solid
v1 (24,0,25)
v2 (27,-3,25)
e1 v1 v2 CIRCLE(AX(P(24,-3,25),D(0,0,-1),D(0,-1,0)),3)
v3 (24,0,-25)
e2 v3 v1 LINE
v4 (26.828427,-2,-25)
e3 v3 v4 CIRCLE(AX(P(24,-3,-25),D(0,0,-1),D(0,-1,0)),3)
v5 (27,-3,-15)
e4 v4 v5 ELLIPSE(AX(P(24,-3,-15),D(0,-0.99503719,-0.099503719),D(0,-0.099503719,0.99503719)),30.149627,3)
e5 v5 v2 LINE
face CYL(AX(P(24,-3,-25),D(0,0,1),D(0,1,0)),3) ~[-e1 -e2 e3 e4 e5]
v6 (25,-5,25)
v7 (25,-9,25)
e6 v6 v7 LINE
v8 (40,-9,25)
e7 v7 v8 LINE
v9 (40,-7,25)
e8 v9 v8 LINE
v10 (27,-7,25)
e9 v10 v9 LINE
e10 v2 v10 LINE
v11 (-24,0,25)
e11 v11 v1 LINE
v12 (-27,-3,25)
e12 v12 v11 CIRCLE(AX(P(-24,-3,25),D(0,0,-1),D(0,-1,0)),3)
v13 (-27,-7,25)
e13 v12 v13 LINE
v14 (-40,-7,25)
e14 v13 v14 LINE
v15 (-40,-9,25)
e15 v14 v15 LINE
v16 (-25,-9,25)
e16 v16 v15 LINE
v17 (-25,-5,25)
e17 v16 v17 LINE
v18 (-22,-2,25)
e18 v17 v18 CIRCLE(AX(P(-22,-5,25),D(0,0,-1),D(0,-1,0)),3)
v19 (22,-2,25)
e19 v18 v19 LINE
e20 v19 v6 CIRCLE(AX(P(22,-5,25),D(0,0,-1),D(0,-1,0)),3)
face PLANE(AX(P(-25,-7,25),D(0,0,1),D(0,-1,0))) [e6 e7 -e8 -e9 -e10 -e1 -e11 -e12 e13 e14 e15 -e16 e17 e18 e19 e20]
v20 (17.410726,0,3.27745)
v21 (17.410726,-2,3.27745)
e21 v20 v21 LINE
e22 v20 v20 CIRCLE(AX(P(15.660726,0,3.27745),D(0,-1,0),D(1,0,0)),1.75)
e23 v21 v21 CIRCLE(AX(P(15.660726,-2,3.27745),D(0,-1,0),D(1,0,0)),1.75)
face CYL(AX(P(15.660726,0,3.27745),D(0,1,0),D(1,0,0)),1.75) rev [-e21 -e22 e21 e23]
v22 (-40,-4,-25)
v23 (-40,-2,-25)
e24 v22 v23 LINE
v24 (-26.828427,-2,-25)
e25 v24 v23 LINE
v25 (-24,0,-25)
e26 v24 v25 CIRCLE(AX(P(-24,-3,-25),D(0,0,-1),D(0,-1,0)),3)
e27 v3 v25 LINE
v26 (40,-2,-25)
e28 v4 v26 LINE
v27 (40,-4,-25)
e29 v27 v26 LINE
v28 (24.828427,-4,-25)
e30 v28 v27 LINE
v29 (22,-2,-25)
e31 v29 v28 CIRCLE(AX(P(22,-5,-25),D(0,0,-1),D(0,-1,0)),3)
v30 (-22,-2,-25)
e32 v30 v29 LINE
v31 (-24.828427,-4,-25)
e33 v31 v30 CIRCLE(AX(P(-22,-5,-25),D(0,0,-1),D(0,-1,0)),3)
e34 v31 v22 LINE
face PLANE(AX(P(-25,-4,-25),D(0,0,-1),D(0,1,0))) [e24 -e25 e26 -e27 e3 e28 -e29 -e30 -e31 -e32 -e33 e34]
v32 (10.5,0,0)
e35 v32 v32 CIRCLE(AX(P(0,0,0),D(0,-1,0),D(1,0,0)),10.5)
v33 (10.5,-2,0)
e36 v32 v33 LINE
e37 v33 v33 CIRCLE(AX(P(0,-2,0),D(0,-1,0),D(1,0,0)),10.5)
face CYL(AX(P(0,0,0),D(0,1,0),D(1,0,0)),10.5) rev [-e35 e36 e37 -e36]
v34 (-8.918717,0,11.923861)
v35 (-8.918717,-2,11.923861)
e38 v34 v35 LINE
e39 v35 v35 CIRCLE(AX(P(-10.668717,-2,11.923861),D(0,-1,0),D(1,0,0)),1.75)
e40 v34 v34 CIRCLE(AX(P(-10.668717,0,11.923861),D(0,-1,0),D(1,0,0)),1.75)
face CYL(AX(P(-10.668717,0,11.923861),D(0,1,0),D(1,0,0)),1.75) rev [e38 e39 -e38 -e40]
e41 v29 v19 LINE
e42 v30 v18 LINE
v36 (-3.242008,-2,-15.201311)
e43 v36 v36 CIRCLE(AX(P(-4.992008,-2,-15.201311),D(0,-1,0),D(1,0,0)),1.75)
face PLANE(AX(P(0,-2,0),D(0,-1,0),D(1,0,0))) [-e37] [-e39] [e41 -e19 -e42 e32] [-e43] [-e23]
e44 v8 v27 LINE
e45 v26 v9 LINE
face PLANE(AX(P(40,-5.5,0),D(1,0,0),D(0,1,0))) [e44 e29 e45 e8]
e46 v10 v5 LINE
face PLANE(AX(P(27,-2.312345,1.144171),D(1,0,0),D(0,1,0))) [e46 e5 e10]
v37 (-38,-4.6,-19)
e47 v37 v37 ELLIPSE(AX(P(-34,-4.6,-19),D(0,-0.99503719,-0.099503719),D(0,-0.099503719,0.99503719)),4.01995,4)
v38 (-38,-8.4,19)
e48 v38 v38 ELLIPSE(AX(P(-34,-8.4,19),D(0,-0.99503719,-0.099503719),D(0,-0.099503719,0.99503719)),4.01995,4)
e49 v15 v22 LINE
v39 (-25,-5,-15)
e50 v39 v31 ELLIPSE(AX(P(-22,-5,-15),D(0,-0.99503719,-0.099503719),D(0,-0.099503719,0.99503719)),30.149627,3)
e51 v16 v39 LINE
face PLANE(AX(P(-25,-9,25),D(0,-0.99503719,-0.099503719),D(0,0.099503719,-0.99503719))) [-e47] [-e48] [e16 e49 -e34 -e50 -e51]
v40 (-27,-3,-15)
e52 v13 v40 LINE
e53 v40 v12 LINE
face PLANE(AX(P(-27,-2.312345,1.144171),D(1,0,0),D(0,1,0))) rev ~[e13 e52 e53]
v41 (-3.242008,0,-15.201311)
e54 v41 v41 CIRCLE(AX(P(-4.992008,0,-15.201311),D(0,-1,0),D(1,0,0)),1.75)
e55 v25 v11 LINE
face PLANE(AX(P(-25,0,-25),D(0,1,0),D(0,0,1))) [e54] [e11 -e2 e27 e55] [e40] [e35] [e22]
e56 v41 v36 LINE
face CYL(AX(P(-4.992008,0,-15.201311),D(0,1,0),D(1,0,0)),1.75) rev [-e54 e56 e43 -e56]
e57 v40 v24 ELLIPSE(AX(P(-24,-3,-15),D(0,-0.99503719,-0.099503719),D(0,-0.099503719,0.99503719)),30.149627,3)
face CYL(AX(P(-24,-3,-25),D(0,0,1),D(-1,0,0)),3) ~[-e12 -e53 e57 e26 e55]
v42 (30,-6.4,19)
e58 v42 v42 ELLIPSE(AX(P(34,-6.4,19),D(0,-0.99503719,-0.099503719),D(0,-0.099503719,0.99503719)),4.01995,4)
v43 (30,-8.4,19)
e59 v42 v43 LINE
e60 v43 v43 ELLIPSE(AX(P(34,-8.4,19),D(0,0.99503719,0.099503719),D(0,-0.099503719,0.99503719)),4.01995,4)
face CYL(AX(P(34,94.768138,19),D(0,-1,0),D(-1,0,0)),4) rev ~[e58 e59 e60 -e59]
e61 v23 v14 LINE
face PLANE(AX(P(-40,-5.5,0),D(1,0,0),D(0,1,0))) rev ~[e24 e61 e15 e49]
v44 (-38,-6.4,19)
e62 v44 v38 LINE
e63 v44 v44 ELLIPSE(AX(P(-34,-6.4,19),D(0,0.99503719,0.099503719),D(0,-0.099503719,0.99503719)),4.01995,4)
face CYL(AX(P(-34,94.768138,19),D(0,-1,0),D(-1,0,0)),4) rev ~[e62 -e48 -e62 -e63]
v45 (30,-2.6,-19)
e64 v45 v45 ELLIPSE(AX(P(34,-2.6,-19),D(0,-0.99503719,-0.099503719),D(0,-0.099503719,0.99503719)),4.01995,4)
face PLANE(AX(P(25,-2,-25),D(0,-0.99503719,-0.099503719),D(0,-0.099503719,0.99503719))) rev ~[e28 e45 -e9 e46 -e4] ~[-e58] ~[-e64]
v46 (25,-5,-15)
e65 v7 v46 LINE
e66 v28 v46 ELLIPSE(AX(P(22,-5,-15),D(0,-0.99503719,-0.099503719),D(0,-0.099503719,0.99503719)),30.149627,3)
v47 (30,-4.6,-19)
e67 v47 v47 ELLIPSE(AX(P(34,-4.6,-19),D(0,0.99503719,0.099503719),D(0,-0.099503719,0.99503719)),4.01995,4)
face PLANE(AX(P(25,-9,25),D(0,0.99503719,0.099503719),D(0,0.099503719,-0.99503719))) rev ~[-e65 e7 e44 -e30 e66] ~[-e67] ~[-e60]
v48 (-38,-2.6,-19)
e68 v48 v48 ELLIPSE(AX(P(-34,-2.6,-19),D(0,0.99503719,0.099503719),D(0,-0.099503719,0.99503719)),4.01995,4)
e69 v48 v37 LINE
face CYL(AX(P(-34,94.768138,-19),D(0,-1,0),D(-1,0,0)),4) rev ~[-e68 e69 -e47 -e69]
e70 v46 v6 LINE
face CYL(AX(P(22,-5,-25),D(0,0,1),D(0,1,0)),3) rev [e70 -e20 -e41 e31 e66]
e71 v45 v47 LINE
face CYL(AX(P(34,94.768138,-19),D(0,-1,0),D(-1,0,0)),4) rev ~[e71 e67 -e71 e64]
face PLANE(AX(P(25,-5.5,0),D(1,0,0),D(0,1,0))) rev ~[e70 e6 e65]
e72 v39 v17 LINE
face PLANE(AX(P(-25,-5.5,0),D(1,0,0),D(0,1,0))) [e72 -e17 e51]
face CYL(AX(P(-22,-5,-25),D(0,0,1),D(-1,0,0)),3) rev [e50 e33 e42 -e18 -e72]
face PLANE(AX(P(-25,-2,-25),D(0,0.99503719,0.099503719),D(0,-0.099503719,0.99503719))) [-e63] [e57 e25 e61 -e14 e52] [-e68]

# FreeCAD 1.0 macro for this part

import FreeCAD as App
import Part
import Sketcher
Q = App.Units.Quantity


def edges_at(feature, points):
    """Names of the edges that pass closest to the given points."""
    edges = feature.Shape.Edges
    near = lambda p: min(range(len(edges)), key=lambda i: edges[i].distToShape(Part.Vertex(*p))[0])
    return sorted({f"Edge{near(p) + 1}" for p in points})

doc = App.newDocument("Part")
body = doc.addObject("PartDesign::Body", "Body")

# Sketch on XZ plane
sketch1 = body.newObject("Sketcher::SketchObject", "Sketch")
sketch1.AttachmentSupport = (doc.getObject("XZ_Plane"), [""])
sketch1.MapMode = "FlatFace"
sketch1.addGeometry(Part.LineSegment(App.Vector(-25, 25, 0), App.Vector(-25, -25, 0)), False)
sketch1.addGeometry(Part.LineSegment(App.Vector(-25, -25, 0), App.Vector(25, -25, 0)), False)
sketch1.addGeometry(Part.LineSegment(App.Vector(25, -25, 0), App.Vector(25, 25, 0)), False)
sketch1.addGeometry(Part.LineSegment(App.Vector(25, 25, 0), App.Vector(-25, 25, 0)), False)
sketch1.addGeometry(Part.Circle(App.Vector(-5, -15.2, 0), App.Vector(0, 0, 1), 1.8), False)
sketch1.addGeometry(Part.Circle(App.Vector(0, 0, 0), App.Vector(0, 0, 1), 10.5), False)
sketch1.addGeometry(Part.Circle(App.Vector(-10.7, 11.9, 0), App.Vector(0, 0, 1), 1.8), False)
sketch1.addGeometry(Part.Circle(App.Vector(15.7, 3.3, 0), App.Vector(0, 0, 1), 1.8), False)
sketch1.addConstraint(Sketcher.Constraint("Coincident", 0, 2, 1, 1))
sketch1.addConstraint(Sketcher.Constraint("Coincident", 1, 2, 2, 1))
sketch1.addConstraint(Sketcher.Constraint("Coincident", 2, 2, 3, 1))
sketch1.addConstraint(Sketcher.Constraint("Coincident", 3, 2, 0, 1))
sketch1.addConstraint(Sketcher.Constraint("Vertical", 0))
sketch1.addConstraint(Sketcher.Constraint("Horizontal", 1))
sketch1.addConstraint(Sketcher.Constraint("Vertical", 2))
sketch1.addConstraint(Sketcher.Constraint("Horizontal", 3))
sketch1.addConstraint(Sketcher.Constraint("Coincident", 5, 3, -1, 1))
sketch1.addConstraint(Sketcher.Constraint("Equal", 4, 6))
sketch1.addConstraint(Sketcher.Constraint("Equal", 6, 7))
sketch1.addConstraint(Sketcher.Constraint("Symmetric", 0, 2, 2, 2, -1, 1))
sketch1.addConstraint(Sketcher.Constraint("Equal", 3, 0))
sketch1.addConstraint(Sketcher.Constraint("Diameter", 5, Q("21 mm")))
sketch1.addConstraint(Sketcher.Constraint("Diameter", 4, Q("3.5 mm")))
sketch1.addConstraint(Sketcher.Constraint("DistanceX", 1, 1, 1, 2, Q("50 mm")))
sketch1.addConstraint(Sketcher.Constraint("DistanceX", 4, 3, -1, 1, Q("4.992008 mm")))
sketch1.addConstraint(Sketcher.Constraint("DistanceY", 4, 3, -1, 1, Q("15.201311 mm")))
sketch1.addConstraint(Sketcher.Constraint("DistanceY", -1, 1, 6, 3, Q("11.923861 mm")))
sketch1.addConstraint(Sketcher.Constraint("DistanceY", -1, 1, 7, 3, Q("3.27745 mm")))
sketch1.addConstraint(Sketcher.Constraint("DistanceX", 6, 3, 4, 3, Q("5.676709 mm")))
sketch1.addConstraint(Sketcher.Constraint("DistanceX", -1, 1, 7, 3, Q("15.660726 mm")))
pad1 = body.newObject("PartDesign::Pad", "Pad")
pad1.Profile = sketch1
pad1.Length = 2

# Sketch on YZ plane
sketch2 = body.newObject("Sketcher::SketchObject", "Sketch001")
sketch2.AttachmentSupport = (doc.getObject("YZ_Plane"), [""])
sketch2.MapMode = "FlatFace"
sketch2.AttachmentOffset = App.Placement(App.Vector(0, 0, 25), App.Rotation())
sketch2.addGeometry(Part.LineSegment(App.Vector(0, 25, 0), App.Vector(-7, 25, 0)), False)
sketch2.addGeometry(Part.LineSegment(App.Vector(-7, 25, 0), App.Vector(-2, -25, 0)), False)
sketch2.addGeometry(Part.LineSegment(App.Vector(-2, -25, 0), App.Vector(0, -25, 0)), False)
sketch2.addGeometry(Part.LineSegment(App.Vector(0, -25, 0), App.Vector(0, 25, 0)), False)
sketch2.addConstraint(Sketcher.Constraint("Coincident", 0, 2, 1, 1))
sketch2.addConstraint(Sketcher.Constraint("Coincident", 1, 2, 2, 1))
sketch2.addConstraint(Sketcher.Constraint("Coincident", 2, 2, 3, 1))
sketch2.addConstraint(Sketcher.Constraint("Coincident", 3, 2, 0, 1))
sketch2.addConstraint(Sketcher.Constraint("Horizontal", 0))
sketch2.addConstraint(Sketcher.Constraint("Horizontal", 2))
sketch2.addConstraint(Sketcher.Constraint("Vertical", 3))
sketch2.addConstraint(Sketcher.Constraint("Symmetric", 2, 2, 3, 2, -1, 1))
sketch2.addConstraint(Sketcher.Constraint("DistanceX", 0, 2, 0, 1, Q("7 mm")))
sketch2.addConstraint(Sketcher.Constraint("DistanceX", 2, 1, 2, 2, Q("2 mm")))
sketch2.addConstraint(Sketcher.Constraint("DistanceY", 3, 1, 3, 2, Q("50 mm")))
pad2 = body.newObject("PartDesign::Pad", "Pad001")
pad2.Profile = sketch2
pad2.Length = 2

# Sketch on YZ plane
sketch3 = body.newObject("Sketcher::SketchObject", "Sketch002")
sketch3.AttachmentSupport = (doc.getObject("YZ_Plane"), [""])
sketch3.MapMode = "FlatFace"
sketch3.AttachmentOffset = App.Placement(App.Vector(0, 0, -25), App.Rotation())
sketch3.addGeometry(Part.LineSegment(App.Vector(0, -25, 0), App.Vector(0, 25, 0)), False)
sketch3.addGeometry(Part.LineSegment(App.Vector(0, 25, 0), App.Vector(-7, 25, 0)), False)
sketch3.addGeometry(Part.LineSegment(App.Vector(-7, 25, 0), App.Vector(-2, -25, 0)), False)
sketch3.addGeometry(Part.LineSegment(App.Vector(-2, -25, 0), App.Vector(0, -25, 0)), False)
sketch3.addConstraint(Sketcher.Constraint("Coincident", 0, 2, 1, 1))
sketch3.addConstraint(Sketcher.Constraint("Coincident", 1, 2, 2, 1))
sketch3.addConstraint(Sketcher.Constraint("Coincident", 2, 2, 3, 1))
sketch3.addConstraint(Sketcher.Constraint("Coincident", 3, 2, 0, 1))
sketch3.addConstraint(Sketcher.Constraint("Vertical", 0))
sketch3.addConstraint(Sketcher.Constraint("Horizontal", 1))
sketch3.addConstraint(Sketcher.Constraint("Horizontal", 3))
sketch3.addConstraint(Sketcher.Constraint("Symmetric", 0, 2, 3, 2, -1, 1))
sketch3.addConstraint(Sketcher.Constraint("DistanceX", 1, 2, 1, 1, Q("7 mm")))
sketch3.addConstraint(Sketcher.Constraint("DistanceX", 3, 1, 3, 2, Q("2 mm")))
sketch3.addConstraint(Sketcher.Constraint("DistanceY", 0, 1, 0, 2, Q("50 mm")))
pad3 = body.newObject("PartDesign::Pad", "Pad002")
pad3.Profile = sketch3
pad3.Length = 2
pad3.Reversed = True

# Sketch on YZ plane
sketch4 = body.newObject("Sketcher::SketchObject", "Sketch003")
sketch4.AttachmentSupport = (doc.getObject("YZ_Plane"), [""])
sketch4.MapMode = "FlatFace"
sketch4.AttachmentOffset = App.Placement(App.Vector(0, 0, 25), App.Rotation())
sketch4.addGeometry(Part.LineSegment(App.Vector(-2, -25, 0), App.Vector(-7, 25, 0)), False)
sketch4.addGeometry(Part.LineSegment(App.Vector(-7, 25, 0), App.Vector(-9, 25, 0)), False)
sketch4.addGeometry(Part.LineSegment(App.Vector(-9, 25, 0), App.Vector(-4, -25, 0)), False)
sketch4.addGeometry(Part.LineSegment(App.Vector(-4, -25, 0), App.Vector(-2, -25, 0)), False)
sketch4.addConstraint(Sketcher.Constraint("Coincident", 0, 2, 1, 1))
sketch4.addConstraint(Sketcher.Constraint("Coincident", 1, 2, 2, 1))
sketch4.addConstraint(Sketcher.Constraint("Coincident", 2, 2, 3, 1))
sketch4.addConstraint(Sketcher.Constraint("Coincident", 3, 2, 0, 1))
sketch4.addConstraint(Sketcher.Constraint("Horizontal", 1))
sketch4.addConstraint(Sketcher.Constraint("Horizontal", 3))
sketch4.addConstraint(Sketcher.Constraint("Parallel", 0, 2))
sketch4.addConstraint(Sketcher.Constraint("DistanceX", 1, 2, 1, 1, Q("2 mm")))
sketch4.addConstraint(Sketcher.Constraint("DistanceX", 0, 2, -1, 1, Q("7 mm")))
sketch4.addConstraint(Sketcher.Constraint("DistanceY", -1, 1, 0, 2, Q("25 mm")))
sketch4.addConstraint(Sketcher.Constraint("DistanceX", 2, 2, -1, 1, Q("4 mm")))
sketch4.addConstraint(Sketcher.Constraint("DistanceY", 2, 2, -1, 1, Q("25 mm")))
pad4 = body.newObject("PartDesign::Pad", "Pad003")
pad4.Profile = sketch4
pad4.Length = 15

# Sketch on YZ plane
sketch5 = body.newObject("Sketcher::SketchObject", "Sketch004")
sketch5.AttachmentSupport = (doc.getObject("YZ_Plane"), [""])
sketch5.MapMode = "FlatFace"
sketch5.AttachmentOffset = App.Placement(App.Vector(0, 0, -25), App.Rotation())
sketch5.addGeometry(Part.LineSegment(App.Vector(-2, -25, 0), App.Vector(-7, 25, 0)), False)
sketch5.addGeometry(Part.LineSegment(App.Vector(-7, 25, 0), App.Vector(-9, 25, 0)), False)
sketch5.addGeometry(Part.LineSegment(App.Vector(-9, 25, 0), App.Vector(-4, -25, 0)), False)
sketch5.addGeometry(Part.LineSegment(App.Vector(-4, -25, 0), App.Vector(-2, -25, 0)), False)
sketch5.addConstraint(Sketcher.Constraint("Coincident", 0, 2, 1, 1))
sketch5.addConstraint(Sketcher.Constraint("Coincident", 1, 2, 2, 1))
sketch5.addConstraint(Sketcher.Constraint("Coincident", 2, 2, 3, 1))
sketch5.addConstraint(Sketcher.Constraint("Coincident", 3, 2, 0, 1))
sketch5.addConstraint(Sketcher.Constraint("Horizontal", 1))
sketch5.addConstraint(Sketcher.Constraint("Horizontal", 3))
sketch5.addConstraint(Sketcher.Constraint("Parallel", 0, 2))
sketch5.addConstraint(Sketcher.Constraint("DistanceX", 1, 2, 1, 1, Q("2 mm")))
sketch5.addConstraint(Sketcher.Constraint("DistanceX", 0, 2, -1, 1, Q("7 mm")))
sketch5.addConstraint(Sketcher.Constraint("DistanceY", -1, 1, 0, 2, Q("25 mm")))
sketch5.addConstraint(Sketcher.Constraint("DistanceX", 2, 2, -1, 1, Q("4 mm")))
sketch5.addConstraint(Sketcher.Constraint("DistanceY", 2, 2, -1, 1, Q("25 mm")))
pad5 = body.newObject("PartDesign::Pad", "Pad004")
pad5.Profile = sketch5
pad5.Length = 15
pad5.Reversed = True

# Sketch on XZ plane
sketch6 = body.newObject("Sketcher::SketchObject", "Sketch005")
sketch6.AttachmentSupport = (doc.getObject("XZ_Plane"), [""])
sketch6.MapMode = "FlatFace"
sketch6.addGeometry(Part.Circle(App.Vector(-34, 19, 0), App.Vector(0, 0, 1), 4), False)
sketch6.addGeometry(Part.Circle(App.Vector(-34, -19, 0), App.Vector(0, 0, 1), 4), False)
sketch6.addGeometry(Part.Circle(App.Vector(34, -19, 0), App.Vector(0, 0, 1), 4), False)
sketch6.addGeometry(Part.Circle(App.Vector(34, 19, 0), App.Vector(0, 0, 1), 4), False)
sketch6.addConstraint(Sketcher.Constraint("Equal", 0, 1))
sketch6.addConstraint(Sketcher.Constraint("Equal", 1, 2))
sketch6.addConstraint(Sketcher.Constraint("Equal", 2, 3))
sketch6.addConstraint(Sketcher.Constraint("Symmetric", 0, 3, 2, 3, -1, 1))
sketch6.addConstraint(Sketcher.Constraint("Symmetric", 1, 3, 3, 3, -1, 1))
sketch6.addConstraint(Sketcher.Constraint("Symmetric", 1, 3, 2, 3, -2))
sketch6.addConstraint(Sketcher.Constraint("Diameter", 0, Q("8 mm")))
sketch6.addConstraint(Sketcher.Constraint("DistanceX", 0, 3, -1, 1, Q("34 mm")))
sketch6.addConstraint(Sketcher.Constraint("DistanceY", -1, 1, 0, 3, Q("19 mm")))
doc.recompute()
hole = body.newObject("PartDesign::Hole", "Hole")
hole.Profile = sketch6
hole.ThreadType = "None"
hole.Diameter = 8
hole.DepthType = "ThroughAll"
hole.Reversed = True
doc.recompute()

fillet = body.newObject("PartDesign::Fillet", "Fillet")
fillet.Base = (hole, edges_at(hole, [
    (-27, 0, 0),
    (27, 0, 0),
    (25, -2, 0),
    (-25, -2, 0),
]))
fillet.Radius = 3

doc.recompute()
